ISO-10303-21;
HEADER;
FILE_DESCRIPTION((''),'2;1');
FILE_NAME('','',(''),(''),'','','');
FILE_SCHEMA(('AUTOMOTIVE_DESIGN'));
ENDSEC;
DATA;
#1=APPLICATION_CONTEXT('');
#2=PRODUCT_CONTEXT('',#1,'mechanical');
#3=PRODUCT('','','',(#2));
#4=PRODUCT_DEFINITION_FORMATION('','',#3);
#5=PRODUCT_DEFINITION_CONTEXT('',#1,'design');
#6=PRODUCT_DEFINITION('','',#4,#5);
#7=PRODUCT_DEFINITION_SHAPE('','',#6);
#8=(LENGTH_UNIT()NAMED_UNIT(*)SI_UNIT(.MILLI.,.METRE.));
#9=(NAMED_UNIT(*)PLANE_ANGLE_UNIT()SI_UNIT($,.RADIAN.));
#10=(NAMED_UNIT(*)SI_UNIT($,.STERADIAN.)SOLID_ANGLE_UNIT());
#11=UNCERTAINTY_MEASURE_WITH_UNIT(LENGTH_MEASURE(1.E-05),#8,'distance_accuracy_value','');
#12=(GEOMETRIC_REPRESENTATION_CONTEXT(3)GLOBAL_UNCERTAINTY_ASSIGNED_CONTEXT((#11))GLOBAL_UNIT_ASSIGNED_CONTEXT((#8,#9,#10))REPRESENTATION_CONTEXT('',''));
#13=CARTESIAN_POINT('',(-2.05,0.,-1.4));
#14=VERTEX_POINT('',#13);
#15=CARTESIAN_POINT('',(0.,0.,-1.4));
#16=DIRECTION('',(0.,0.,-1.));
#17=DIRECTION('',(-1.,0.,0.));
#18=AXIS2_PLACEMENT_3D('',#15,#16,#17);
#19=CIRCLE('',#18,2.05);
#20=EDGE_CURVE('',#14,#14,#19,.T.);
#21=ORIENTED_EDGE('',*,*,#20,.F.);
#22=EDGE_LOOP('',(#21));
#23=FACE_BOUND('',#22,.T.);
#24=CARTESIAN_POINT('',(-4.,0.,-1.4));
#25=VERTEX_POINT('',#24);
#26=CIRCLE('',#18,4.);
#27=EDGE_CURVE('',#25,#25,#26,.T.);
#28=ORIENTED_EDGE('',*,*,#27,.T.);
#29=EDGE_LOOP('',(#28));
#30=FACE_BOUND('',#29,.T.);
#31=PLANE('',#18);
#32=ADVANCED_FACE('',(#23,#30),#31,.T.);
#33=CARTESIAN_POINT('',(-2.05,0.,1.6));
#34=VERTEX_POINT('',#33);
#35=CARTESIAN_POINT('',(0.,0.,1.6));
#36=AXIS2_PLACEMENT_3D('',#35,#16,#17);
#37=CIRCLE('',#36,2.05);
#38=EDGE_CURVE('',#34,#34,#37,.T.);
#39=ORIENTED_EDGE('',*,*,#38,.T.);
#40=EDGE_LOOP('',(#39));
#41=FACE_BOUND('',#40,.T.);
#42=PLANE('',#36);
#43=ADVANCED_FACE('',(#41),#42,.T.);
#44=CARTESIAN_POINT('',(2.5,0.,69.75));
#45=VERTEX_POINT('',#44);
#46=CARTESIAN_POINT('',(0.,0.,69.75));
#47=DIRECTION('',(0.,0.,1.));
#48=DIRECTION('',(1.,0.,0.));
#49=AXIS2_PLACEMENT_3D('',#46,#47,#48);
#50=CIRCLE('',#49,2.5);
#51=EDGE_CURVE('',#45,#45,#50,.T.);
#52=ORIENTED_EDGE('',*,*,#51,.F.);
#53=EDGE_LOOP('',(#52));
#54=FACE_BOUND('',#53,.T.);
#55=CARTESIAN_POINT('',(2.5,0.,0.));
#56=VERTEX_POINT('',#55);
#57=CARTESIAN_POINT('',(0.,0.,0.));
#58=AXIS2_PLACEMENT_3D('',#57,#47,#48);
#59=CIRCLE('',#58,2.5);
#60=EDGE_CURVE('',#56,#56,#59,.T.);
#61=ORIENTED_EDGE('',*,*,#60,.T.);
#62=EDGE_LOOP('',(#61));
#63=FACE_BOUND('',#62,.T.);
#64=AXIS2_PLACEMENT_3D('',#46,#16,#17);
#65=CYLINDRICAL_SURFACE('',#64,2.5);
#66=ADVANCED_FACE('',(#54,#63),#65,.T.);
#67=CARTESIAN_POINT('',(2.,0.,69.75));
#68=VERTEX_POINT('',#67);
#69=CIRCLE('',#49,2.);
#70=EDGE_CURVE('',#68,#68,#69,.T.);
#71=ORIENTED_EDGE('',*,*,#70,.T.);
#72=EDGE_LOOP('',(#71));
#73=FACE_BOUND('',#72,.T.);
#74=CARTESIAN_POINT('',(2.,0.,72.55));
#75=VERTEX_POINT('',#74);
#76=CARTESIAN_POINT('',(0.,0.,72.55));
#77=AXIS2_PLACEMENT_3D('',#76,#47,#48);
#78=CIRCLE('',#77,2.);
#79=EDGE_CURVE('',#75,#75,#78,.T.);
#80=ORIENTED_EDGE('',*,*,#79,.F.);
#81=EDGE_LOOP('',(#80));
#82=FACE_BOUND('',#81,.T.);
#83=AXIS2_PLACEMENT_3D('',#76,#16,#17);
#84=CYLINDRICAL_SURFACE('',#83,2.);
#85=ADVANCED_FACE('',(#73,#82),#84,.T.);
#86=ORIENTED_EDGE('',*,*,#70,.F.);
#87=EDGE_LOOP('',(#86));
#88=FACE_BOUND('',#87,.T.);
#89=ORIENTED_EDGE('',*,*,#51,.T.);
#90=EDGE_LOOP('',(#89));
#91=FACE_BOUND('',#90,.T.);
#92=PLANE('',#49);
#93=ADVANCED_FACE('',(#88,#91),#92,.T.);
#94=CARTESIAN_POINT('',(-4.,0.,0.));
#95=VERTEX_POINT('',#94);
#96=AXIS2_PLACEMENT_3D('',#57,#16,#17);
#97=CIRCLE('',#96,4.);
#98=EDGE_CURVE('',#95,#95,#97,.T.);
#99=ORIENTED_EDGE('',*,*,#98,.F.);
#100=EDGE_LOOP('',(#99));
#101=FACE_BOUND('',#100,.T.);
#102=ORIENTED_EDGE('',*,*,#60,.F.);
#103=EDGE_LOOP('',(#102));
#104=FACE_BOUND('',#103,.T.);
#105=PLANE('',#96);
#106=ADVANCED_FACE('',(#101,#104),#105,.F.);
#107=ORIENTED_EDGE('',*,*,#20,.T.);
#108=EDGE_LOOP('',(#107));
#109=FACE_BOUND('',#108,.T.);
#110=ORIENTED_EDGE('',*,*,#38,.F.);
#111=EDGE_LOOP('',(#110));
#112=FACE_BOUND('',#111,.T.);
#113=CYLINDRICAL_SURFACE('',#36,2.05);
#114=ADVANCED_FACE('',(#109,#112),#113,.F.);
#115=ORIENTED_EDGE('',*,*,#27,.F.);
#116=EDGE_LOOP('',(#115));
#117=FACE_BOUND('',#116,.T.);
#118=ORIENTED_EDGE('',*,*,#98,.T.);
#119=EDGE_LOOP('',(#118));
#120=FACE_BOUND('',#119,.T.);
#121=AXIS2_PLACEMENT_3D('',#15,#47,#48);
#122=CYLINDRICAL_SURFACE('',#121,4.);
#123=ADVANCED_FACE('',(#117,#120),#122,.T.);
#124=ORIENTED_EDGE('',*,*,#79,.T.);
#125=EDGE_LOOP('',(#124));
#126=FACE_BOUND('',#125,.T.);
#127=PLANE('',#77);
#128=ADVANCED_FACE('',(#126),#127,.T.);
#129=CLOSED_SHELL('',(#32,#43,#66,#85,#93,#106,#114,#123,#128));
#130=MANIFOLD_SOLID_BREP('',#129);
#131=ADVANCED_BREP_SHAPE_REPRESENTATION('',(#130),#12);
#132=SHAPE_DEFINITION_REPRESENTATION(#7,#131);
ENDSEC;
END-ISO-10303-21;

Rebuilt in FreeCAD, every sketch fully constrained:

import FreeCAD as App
import Part
import Sketcher
Q = App.Units.Quantity

doc = App.newDocument("Part")
params = doc.addObject("Spreadsheet::Sheet", "Params")
for row, (alias, value) in enumerate([
    ("sketch1_diameter", "5 mm"),
    ("pad1_length", "69.75 mm"),
    ("sketch2_diameter", "8 mm"),
    ("pad2_length", "1.4 mm"),
    ("sketch3_diameter", "4.1 mm"),
    ("pocket1_length", "3 mm"),
    ("sketch4_diameter", "4 mm"),
    ("pad3_length", "2.8 mm"),
], start=1):
    params.set(f"A{row}", alias)
    params.set(f"B{row}", "=" + value)
    params.setAlias(f"B{row}", alias)

body = doc.addObject("PartDesign::Body", "Body")

# Sketch on XY plane
sketch1 = doc.addObject("Sketcher::SketchObject", "Sketch")
body.addObject(sketch1)
sketch1.AttachmentSupport = (doc.XY_Plane, [""])
sketch1.MapMode = "FlatFace"
sketch1.addGeometry(Part.Circle(App.Vector(0, 0, 0), App.Vector(0, 0, 1), 2.5), False)
sketch1.addConstraint([
    Sketcher.Constraint("Coincident", 0, 3, -1, 1),
    Sketcher.Constraint("Diameter", 0, Q("5 mm")),
])
sketch1.setExpression("Constraints[1]", "Params.sketch1_diameter")
pad1 = doc.addObject("PartDesign::Pad", "Pad")
body.addObject(pad1)
pad1.Profile = sketch1
pad1.setExpression("Length", "Params.pad1_length")

# Sketch on XY plane
sketch2 = doc.addObject("Sketcher::SketchObject", "Sketch001")
body.addObject(sketch2)
sketch2.AttachmentSupport = (doc.XY_Plane, [""])
sketch2.MapMode = "FlatFace"
sketch2.addGeometry(Part.Circle(App.Vector(0, 0, 0), App.Vector(0, 0, 1), 4), False)
sketch2.addConstraint([
    Sketcher.Constraint("Coincident", 0, 3, -1, 1),
    Sketcher.Constraint("Diameter", 0, Q("8 mm")),
])
sketch2.setExpression("Constraints[1]", "Params.sketch2_diameter")
pad2 = doc.addObject("PartDesign::Pad", "Pad001")
body.addObject(pad2)
pad2.Profile = sketch2
pad2.setExpression("Length", "Params.pad2_length")
pad2.Reversed = True

# Sketch on XY plane
sketch3 = doc.addObject("Sketcher::SketchObject", "Sketch002")
body.addObject(sketch3)
sketch3.AttachmentSupport = (doc.XY_Plane, [""])
sketch3.MapMode = "FlatFace"
sketch3.AttachmentOffset = App.Placement(App.Vector(0, 0, -1.4), App.Rotation())
sketch3.addGeometry(Part.Circle(App.Vector(0, 0, 0), App.Vector(0, 0, 1), 2), False)
sketch3.addConstraint([
    Sketcher.Constraint("Coincident", 0, 3, -1, 1),
    Sketcher.Constraint("Diameter", 0, Q("4.1 mm")),
])
sketch3.setExpression("Constraints[1]", "Params.sketch3_diameter")
pocket1 = doc.addObject("PartDesign::Pocket", "Pocket")
body.addObject(pocket1)
pocket1.Profile = sketch3
pocket1.setExpression("Length", "Params.pocket1_length")
pocket1.Reversed = True

# Sketch on XY plane
sketch4 = doc.addObject("Sketcher::SketchObject", "Sketch003")
body.addObject(sketch4)
sketch4.AttachmentSupport = (doc.XY_Plane, [""])
sketch4.MapMode = "FlatFace"
sketch4.AttachmentOffset = App.Placement(App.Vector(0, 0, 69.75), App.Rotation())
sketch4.addGeometry(Part.Circle(App.Vector(0, 0, 0), App.Vector(0, 0, 1), 2), False)
sketch4.addConstraint([
    Sketcher.Constraint("Coincident", 0, 3, -1, 1),
    Sketcher.Constraint("Diameter", 0, Q("4 mm")),
])
sketch4.setExpression("Constraints[1]", "Params.sketch4_diameter")
pad3 = doc.addObject("PartDesign::Pad", "Pad002")
body.addObject(pad3)
pad3.Profile = sketch4
pad3.setExpression("Length", "Params.pad3_length")

doc.recompute()
